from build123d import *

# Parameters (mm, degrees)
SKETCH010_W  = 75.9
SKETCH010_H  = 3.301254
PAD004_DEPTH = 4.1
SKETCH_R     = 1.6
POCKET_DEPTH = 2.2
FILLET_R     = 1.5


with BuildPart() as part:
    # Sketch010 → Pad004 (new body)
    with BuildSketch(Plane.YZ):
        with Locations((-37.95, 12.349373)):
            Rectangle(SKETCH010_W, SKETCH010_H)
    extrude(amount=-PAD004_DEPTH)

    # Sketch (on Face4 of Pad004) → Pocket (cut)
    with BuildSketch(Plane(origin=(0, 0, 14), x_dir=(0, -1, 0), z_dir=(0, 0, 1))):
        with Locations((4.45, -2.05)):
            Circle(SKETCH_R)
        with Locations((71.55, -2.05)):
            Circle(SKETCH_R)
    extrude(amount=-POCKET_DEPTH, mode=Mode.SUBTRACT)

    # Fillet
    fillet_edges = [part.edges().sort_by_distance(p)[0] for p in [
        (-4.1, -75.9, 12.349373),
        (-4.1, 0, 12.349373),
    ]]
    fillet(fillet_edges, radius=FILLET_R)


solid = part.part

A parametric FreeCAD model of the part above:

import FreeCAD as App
import Part
import Sketcher

V = App.Vector


def edges_at(feature, points):
    """Names of the edges that pass closest to the given points."""
    edges = feature.Shape.Edges
    near = lambda p: min(range(len(edges)), key=lambda i: edges[i].distToShape(Part.Vertex(*p))[0])
    return sorted({f"Edge{near(p) + 1}" for p in points})

doc = App.newDocument("Part")
body = doc.addObject("PartDesign::Body", "Body")

sketch1 = body.newObject("Sketcher::SketchObject", "Sketch")
sketch1.AttachmentSupport = (doc.getObject("YZ_Plane"), [""])
sketch1.MapMode = "FlatFace"
sketch1.addGeometry(Part.LineSegment(V(-75.9, 14, 0), V(-75.9, 10.698746, 0)), False)
sketch1.addGeometry(Part.LineSegment(V(-75.9, 10.698746, 0), V(0, 10.698746, 0)), False)
sketch1.addGeometry(Part.LineSegment(V(0, 10.698746, 0), V(0, 14, 0)), False)
sketch1.addGeometry(Part.LineSegment(V(0, 14, 0), V(-75.9, 14, 0)), False)
sketch1.addConstraint(Sketcher.Constraint("Coincident", 0, 2, 1, 1))
sketch1.addConstraint(Sketcher.Constraint("Coincident", 1, 2, 2, 1))
sketch1.addConstraint(Sketcher.Constraint("Coincident", 2, 2, 3, 1))
sketch1.addConstraint(Sketcher.Constraint("Coincident", 3, 2, 0, 1))
sketch1.addConstraint(Sketcher.Constraint("Vertical", 0))
sketch1.addConstraint(Sketcher.Constraint("Horizontal", 1))
sketch1.addConstraint(Sketcher.Constraint("Vertical", 2))
sketch1.addConstraint(Sketcher.Constraint("Horizontal", 3))
sketch1.addConstraint(Sketcher.Constraint("PointOnObject", 1, 2, -2))
sketch1.addConstraint(Sketcher.Constraint("DistanceX", 1, 1, 1, 2, 75.9))
sketch1.addConstraint(Sketcher.Constraint("DistanceY", -1, 1, 2, 2, 14.0))
sketch1.addConstraint(Sketcher.Constraint("DistanceY", 0, 2, 0, 1, 3.301254))
pad1 = body.newObject("PartDesign::Pad", "Pad")
pad1.Profile = sketch1
pad1.Length = 4.1
pad1.Reversed = True

sketch2 = body.newObject("Sketcher::SketchObject", "Sketch001")
sketch2.AttachmentSupport = (doc.getObject("XY_Plane"), [""])
sketch2.MapMode = "FlatFace"
sketch2.AttachmentOffset = App.Placement(V(0, 0, 14), App.Rotation())
sketch2.addGeometry(Part.Circle(V(-2.05, -4.45, 0), V(0, 0, 1), 1.6), False)
sketch2.addGeometry(Part.Circle(V(-2.05, -71.55, 0), V(0, 0, 1), 1.6), False)
sketch2.addConstraint(Sketcher.Constraint("Equal", 0, 1))
sketch2.addConstraint(Sketcher.Constraint("Vertical", 0, 3, 1, 3))
sketch2.addConstraint(Sketcher.Constraint("Diameter", 0, 3.2))
sketch2.addConstraint(Sketcher.Constraint("DistanceY", 1, 3, 0, 3, 67.1))
sketch2.addConstraint(Sketcher.Constraint("DistanceX", 0, 3, -1, 1, 2.05))
sketch2.addConstraint(Sketcher.Constraint("DistanceY", 0, 3, -1, 1, 4.45))
pocket1 = body.newObject("PartDesign::Pocket", "Pocket")
pocket1.Profile = sketch2
pocket1.Length = 2.2
doc.recompute()

fillet = body.newObject("PartDesign::Fillet", "Fillet")
fillet.Base = (pocket1, edges_at(pocket1, [(-4.1, -75.9, 12.349), (-4.1, 0, 12.349)]))
fillet.Radius = 1.5

doc.recompute()
